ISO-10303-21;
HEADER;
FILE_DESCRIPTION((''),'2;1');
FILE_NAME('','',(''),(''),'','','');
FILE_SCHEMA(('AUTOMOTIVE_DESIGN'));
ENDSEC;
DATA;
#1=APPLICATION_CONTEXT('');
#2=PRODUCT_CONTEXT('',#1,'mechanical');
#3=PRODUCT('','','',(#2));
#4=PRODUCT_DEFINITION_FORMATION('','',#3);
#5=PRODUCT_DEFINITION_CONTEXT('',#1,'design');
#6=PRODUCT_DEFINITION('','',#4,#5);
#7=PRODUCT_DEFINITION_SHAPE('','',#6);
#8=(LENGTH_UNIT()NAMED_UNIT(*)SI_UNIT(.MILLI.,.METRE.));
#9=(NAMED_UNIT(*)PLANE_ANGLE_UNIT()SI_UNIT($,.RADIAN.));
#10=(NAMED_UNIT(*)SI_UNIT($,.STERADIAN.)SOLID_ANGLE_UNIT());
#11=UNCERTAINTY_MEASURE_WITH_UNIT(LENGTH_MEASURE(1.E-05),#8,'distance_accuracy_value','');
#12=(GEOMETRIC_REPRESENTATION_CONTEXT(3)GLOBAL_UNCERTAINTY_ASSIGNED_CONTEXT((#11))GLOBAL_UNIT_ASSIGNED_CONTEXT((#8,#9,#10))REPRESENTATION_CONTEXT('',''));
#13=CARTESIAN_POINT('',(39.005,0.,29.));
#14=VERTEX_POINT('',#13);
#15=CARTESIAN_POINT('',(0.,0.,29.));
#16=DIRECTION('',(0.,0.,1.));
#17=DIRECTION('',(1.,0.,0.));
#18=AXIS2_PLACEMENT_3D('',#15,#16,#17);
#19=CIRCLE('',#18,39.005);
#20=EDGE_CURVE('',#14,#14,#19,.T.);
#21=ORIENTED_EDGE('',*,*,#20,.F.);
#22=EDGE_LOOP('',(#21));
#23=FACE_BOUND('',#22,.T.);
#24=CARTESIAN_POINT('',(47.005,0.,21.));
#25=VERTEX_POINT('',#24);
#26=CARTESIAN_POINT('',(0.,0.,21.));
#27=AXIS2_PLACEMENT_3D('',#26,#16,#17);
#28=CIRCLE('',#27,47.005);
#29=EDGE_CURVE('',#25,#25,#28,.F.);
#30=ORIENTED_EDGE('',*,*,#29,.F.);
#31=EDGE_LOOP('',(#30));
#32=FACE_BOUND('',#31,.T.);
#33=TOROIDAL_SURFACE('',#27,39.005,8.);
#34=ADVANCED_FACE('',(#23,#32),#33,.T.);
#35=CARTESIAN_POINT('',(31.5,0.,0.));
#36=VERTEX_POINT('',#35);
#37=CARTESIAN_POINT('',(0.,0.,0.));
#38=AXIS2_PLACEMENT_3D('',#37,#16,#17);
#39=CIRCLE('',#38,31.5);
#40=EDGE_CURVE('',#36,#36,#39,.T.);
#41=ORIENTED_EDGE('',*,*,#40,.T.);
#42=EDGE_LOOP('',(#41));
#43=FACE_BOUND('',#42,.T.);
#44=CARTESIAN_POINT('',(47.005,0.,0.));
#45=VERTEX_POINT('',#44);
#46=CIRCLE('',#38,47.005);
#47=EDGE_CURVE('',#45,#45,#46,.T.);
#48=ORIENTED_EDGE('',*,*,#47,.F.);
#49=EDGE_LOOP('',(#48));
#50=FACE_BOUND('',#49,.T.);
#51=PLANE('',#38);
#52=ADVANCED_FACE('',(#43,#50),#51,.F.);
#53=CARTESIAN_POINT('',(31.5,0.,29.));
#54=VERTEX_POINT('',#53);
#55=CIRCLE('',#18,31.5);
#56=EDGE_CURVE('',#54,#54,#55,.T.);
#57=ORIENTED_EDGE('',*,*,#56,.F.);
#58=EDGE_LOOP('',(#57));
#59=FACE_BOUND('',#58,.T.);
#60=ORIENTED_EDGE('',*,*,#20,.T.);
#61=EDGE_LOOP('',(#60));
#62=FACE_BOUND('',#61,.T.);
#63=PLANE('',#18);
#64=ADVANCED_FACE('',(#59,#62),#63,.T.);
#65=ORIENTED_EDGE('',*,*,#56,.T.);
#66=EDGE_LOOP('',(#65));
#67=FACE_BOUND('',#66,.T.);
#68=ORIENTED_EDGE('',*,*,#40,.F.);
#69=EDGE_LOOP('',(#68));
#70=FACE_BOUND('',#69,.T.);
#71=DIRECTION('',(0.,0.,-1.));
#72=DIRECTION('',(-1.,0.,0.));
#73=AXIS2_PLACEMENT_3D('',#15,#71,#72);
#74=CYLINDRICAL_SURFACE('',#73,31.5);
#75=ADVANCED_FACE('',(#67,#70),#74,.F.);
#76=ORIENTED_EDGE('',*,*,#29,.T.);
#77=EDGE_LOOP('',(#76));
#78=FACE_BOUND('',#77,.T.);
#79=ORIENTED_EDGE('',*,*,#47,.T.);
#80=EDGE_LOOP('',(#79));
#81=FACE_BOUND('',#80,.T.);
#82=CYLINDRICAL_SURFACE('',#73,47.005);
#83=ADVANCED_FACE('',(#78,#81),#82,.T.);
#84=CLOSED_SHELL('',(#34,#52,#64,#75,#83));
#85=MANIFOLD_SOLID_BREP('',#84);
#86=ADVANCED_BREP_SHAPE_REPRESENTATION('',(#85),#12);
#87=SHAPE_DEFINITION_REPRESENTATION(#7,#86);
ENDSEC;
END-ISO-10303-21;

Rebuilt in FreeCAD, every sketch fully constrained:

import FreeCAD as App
import Part
import Sketcher
from FreeCAD import Vector


def edges_at(feature, points):
    """Names of the edges that pass closest to the given points."""
    edges = feature.Shape.Edges
    near = lambda p: min(range(len(edges)), key=lambda i: edges[i].distToShape(Part.Vertex(*p))[0])
    return sorted({f"Edge{near(p) + 1}" for p in points})

doc = App.newDocument("Part")
body = doc.addObject("PartDesign::Body", "Body")

# Sketch on XY plane
sketch1 = body.newObject("Sketcher::SketchObject", "Sketch")
sketch1.AttachmentSupport = (doc.getObject("XY_Plane"), [""])
sketch1.MapMode = "FlatFace"
sketch1.addGeometry(Part.Circle(Vector(0, 0, 0), Vector(0, 0, 1), 47), False)
sketch1.addGeometry(Part.Circle(Vector(0, 0, 0), Vector(0, 0, 1), 32), False)
sketch1.addConstraint(Sketcher.Constraint("Coincident", 0, 3, -1, 1))
sketch1.addConstraint(Sketcher.Constraint("Coincident", 1, 3, -1, 1))
sketch1.addConstraint(Sketcher.Constraint("Diameter", 1, 63.0))
sketch1.addConstraint(Sketcher.Constraint("Diameter", 0, 94.01))
pad1 = body.newObject("PartDesign::Pad", "Pad")
pad1.Profile = sketch1
pad1.Length = 29
doc.recompute()

fillet = body.newObject("PartDesign::Fillet", "Fillet")
fillet.Base = (pad1, edges_at(pad1, [(-47.005, 0, 29)]))
fillet.Radius = 8

doc.recompute()
